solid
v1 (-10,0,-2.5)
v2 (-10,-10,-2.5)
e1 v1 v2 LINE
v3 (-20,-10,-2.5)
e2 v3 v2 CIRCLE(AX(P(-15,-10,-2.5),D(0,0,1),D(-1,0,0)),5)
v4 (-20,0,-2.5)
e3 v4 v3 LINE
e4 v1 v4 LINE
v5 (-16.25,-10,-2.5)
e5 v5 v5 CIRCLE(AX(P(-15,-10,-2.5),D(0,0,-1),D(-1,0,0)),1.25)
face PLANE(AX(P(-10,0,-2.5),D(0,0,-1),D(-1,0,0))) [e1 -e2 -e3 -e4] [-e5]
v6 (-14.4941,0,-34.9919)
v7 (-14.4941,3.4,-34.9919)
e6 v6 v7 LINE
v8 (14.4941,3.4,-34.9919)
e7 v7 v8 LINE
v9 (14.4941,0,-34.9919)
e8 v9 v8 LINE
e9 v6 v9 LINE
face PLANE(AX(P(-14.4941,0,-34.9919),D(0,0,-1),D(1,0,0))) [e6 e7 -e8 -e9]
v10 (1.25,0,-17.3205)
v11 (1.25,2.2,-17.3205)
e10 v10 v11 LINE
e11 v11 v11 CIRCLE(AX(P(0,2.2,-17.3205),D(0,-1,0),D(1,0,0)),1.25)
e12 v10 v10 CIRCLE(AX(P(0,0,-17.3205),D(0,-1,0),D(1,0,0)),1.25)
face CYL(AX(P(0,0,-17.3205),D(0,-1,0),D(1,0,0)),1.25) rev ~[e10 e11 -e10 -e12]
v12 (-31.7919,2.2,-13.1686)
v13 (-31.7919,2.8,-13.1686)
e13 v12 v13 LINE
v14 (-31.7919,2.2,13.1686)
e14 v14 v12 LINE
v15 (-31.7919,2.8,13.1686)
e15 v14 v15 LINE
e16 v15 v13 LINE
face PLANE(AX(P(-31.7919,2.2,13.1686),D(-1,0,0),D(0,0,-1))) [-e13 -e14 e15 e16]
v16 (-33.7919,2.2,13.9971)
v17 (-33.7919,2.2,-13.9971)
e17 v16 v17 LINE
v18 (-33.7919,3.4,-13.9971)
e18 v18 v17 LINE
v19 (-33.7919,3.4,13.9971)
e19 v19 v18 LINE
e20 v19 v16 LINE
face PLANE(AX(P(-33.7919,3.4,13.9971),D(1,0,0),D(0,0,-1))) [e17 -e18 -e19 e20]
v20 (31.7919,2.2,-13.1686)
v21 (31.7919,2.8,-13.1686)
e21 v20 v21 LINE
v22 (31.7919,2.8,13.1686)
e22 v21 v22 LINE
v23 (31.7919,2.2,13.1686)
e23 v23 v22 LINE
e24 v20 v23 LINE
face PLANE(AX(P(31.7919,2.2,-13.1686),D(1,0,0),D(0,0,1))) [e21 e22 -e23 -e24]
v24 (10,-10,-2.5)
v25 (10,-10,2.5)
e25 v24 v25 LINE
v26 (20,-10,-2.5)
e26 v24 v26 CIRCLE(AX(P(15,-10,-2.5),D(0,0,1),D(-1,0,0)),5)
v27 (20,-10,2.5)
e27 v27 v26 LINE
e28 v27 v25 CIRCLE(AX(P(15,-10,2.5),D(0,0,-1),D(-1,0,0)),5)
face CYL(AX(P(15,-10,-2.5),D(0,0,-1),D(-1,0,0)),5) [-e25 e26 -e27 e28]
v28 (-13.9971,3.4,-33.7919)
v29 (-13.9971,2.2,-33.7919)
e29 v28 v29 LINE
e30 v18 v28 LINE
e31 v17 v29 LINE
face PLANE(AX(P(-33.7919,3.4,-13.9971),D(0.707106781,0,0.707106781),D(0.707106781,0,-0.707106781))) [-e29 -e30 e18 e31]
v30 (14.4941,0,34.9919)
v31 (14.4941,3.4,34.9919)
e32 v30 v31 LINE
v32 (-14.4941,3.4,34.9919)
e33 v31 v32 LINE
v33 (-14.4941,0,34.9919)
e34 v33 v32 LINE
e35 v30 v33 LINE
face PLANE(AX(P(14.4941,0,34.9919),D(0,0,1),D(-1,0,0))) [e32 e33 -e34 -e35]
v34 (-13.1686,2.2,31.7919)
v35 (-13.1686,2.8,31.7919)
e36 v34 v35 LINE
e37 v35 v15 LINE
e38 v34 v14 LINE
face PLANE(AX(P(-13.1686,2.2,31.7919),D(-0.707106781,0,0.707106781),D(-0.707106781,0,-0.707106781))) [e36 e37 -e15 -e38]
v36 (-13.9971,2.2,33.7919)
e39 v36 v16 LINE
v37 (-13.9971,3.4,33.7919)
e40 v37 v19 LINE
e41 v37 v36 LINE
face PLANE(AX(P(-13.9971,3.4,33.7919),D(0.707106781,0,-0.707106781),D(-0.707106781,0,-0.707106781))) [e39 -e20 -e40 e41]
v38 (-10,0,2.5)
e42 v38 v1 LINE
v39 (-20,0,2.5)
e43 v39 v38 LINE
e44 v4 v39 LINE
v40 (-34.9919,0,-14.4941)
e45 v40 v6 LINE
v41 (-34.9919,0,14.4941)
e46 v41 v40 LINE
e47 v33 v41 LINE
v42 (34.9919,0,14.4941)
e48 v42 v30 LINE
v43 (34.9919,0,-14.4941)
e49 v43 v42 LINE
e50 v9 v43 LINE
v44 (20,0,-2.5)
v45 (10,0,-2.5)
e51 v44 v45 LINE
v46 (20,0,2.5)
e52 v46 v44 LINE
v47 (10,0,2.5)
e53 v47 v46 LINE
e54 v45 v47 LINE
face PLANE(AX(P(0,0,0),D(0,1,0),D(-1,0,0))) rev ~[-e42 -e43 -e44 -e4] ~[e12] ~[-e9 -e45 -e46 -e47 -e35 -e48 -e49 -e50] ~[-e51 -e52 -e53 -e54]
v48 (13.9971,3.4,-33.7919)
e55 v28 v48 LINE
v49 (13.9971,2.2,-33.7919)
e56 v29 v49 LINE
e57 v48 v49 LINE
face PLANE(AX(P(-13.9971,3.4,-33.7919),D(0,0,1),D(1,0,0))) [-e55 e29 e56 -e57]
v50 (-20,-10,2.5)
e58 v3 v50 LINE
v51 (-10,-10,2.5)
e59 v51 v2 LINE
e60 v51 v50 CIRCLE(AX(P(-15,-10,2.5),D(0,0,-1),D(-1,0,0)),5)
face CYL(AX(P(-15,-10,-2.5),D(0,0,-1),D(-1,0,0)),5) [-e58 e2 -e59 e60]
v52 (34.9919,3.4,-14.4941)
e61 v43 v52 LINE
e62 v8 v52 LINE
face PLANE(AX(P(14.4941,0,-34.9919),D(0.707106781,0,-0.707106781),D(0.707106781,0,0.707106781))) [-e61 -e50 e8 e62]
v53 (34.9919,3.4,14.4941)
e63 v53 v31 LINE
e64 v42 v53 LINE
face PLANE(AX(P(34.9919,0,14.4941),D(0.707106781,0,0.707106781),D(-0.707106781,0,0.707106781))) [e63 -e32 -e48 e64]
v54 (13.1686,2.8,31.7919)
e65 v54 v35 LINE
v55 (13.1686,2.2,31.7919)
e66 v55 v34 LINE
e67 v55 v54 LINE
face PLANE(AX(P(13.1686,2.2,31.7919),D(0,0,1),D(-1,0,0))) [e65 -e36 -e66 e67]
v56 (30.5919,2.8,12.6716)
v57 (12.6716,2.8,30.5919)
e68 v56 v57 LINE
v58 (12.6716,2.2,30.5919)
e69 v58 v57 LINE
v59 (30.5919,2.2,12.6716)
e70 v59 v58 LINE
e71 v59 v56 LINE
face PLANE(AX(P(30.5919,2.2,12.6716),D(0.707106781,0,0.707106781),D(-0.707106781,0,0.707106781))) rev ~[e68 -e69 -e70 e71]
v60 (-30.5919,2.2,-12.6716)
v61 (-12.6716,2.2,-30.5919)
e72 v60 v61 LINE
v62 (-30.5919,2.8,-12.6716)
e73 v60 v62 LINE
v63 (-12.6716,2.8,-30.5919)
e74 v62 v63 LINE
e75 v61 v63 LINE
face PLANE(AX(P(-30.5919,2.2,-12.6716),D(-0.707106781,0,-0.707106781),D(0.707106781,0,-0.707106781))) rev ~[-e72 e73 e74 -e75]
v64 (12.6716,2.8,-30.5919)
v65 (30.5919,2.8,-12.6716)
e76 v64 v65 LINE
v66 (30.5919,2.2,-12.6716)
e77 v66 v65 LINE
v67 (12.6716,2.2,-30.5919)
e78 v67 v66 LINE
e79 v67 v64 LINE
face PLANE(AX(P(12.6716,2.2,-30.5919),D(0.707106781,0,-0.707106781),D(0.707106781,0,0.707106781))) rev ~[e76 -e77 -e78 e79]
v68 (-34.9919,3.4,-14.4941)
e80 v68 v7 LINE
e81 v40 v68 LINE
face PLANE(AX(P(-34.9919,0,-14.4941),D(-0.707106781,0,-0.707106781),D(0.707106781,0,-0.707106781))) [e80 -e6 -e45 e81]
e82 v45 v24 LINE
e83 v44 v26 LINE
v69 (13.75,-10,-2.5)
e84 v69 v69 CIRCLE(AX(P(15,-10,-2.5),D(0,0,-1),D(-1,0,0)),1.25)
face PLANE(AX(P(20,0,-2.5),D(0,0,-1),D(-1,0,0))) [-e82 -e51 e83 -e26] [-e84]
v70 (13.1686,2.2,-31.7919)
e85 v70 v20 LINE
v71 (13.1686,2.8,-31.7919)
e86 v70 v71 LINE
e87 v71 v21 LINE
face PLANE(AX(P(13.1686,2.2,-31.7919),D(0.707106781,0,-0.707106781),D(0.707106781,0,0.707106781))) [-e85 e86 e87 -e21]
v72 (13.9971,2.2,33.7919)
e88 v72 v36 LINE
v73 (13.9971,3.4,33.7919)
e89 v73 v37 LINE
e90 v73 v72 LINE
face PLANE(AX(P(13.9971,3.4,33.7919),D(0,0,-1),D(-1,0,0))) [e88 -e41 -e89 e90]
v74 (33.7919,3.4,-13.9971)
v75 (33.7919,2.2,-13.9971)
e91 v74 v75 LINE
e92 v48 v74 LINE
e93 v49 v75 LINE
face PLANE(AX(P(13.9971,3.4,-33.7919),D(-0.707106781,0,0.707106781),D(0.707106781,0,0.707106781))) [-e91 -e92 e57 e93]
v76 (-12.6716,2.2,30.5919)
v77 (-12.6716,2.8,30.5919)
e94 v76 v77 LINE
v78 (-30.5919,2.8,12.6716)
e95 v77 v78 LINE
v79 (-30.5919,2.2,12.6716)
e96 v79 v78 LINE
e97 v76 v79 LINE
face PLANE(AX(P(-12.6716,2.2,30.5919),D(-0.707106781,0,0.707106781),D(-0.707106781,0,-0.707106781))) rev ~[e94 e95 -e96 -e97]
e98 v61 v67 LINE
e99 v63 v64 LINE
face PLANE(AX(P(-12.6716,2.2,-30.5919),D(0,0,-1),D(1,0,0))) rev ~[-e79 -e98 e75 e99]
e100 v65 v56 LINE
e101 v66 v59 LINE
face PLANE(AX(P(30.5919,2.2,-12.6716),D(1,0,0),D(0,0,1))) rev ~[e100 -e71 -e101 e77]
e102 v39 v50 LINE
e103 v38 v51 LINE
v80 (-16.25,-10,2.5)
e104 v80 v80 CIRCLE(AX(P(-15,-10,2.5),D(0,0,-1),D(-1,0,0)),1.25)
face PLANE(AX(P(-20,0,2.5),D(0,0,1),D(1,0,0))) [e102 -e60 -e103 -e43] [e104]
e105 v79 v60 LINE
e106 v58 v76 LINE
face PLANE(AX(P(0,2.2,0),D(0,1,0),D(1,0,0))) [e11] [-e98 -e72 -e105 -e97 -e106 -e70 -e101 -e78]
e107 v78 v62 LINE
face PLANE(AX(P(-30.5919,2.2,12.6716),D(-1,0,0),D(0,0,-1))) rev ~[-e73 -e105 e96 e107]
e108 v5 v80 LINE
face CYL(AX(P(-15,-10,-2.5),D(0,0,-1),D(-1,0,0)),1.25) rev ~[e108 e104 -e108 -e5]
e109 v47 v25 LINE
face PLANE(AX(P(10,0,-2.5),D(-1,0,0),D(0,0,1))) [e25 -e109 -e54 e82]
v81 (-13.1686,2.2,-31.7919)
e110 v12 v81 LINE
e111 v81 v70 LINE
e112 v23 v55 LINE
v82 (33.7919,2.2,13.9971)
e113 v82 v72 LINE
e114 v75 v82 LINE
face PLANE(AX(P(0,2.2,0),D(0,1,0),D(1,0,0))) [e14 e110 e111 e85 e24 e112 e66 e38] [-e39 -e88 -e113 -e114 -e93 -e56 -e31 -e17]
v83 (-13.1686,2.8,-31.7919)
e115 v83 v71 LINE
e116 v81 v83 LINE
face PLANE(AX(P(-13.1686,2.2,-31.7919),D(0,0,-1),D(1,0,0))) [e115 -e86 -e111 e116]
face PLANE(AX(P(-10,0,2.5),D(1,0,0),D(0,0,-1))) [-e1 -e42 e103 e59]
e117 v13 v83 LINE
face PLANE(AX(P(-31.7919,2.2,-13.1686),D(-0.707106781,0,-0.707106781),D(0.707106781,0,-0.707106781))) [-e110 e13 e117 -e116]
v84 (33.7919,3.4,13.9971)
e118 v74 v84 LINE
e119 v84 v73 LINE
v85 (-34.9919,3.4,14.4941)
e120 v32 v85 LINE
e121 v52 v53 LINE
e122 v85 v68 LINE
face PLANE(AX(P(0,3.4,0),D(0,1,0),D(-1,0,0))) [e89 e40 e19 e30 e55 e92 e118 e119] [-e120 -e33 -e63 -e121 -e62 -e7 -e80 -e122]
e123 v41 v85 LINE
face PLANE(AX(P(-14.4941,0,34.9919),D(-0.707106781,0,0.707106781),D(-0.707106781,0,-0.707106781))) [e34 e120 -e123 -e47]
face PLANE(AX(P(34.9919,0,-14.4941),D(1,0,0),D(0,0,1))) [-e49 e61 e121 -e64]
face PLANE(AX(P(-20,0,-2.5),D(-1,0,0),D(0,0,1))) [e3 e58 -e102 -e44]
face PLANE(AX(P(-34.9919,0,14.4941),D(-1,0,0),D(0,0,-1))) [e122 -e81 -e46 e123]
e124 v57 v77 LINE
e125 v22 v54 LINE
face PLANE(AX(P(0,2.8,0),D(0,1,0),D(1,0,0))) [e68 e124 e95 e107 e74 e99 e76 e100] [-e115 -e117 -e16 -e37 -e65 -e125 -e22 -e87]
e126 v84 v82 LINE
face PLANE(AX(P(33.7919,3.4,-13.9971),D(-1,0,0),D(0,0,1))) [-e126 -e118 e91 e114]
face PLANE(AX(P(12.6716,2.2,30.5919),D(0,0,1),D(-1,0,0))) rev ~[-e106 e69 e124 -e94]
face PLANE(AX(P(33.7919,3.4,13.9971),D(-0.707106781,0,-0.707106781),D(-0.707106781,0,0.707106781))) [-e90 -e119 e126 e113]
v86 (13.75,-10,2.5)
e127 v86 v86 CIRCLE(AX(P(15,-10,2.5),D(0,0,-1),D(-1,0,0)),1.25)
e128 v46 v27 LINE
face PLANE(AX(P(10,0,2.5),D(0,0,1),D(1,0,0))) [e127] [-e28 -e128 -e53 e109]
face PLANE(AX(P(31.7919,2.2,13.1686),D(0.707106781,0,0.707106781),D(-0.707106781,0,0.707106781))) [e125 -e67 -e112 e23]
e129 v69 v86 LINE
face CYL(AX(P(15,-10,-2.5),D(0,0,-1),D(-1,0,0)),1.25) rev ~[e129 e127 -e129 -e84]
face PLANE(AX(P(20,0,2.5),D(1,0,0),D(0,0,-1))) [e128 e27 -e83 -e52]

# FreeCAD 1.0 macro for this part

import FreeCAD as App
import Part
import Sketcher

V = App.Vector
Q = App.Units.Quantity


def add_polygon(sketch, points):
    """Adds a closed chain of lines whose ends are joined by coincident constraints."""
    first, n = sketch.GeometryCount, len(points)
    for a, b in zip(points, points[1:] + points[:1]):
        sketch.addGeometry(Part.LineSegment(App.Vector(*a, 0), App.Vector(*b, 0)), False)
    for i in range(n):
        sketch.addConstraint(Sketcher.Constraint("Coincident", first + i, 2, first + (i + 1) % n, 1))

doc = App.newDocument("Part")
body = doc.addObject("PartDesign::Body", "Body")

# Sketch on XZ plane
sketch1 = body.newObject("Sketcher::SketchObject", "Sketch")
sketch1.AttachmentSupport = (doc.getObject("XZ_Plane"), [""])
sketch1.MapMode = "FlatFace"
add_polygon(sketch1, [(-14, -35), (-35, -14), (-35, 14), (-14, 35), (14, 35), (35, 14), (35, -14), (14, -35)])  # lines 0-7
sketch1.addConstraint([
    Sketcher.Constraint("Vertical", 1),
    Sketcher.Constraint("Horizontal", 3),
    Sketcher.Constraint("Vertical", 5),
    Sketcher.Constraint("Horizontal", 7),
    Sketcher.Constraint("Symmetric", 0, 2, 4, 2, -1, 1),
    Sketcher.Constraint("Symmetric", 2, 2, 6, 2, -1, 1),
    Sketcher.Constraint("Perpendicular", 0, 2),
    Sketcher.Constraint("Perpendicular", 2, 4),
    Sketcher.Constraint("Perpendicular", 4, 6),
    Sketcher.Constraint("Horizontal", 1, 2, 4, 2),
    Sketcher.Constraint("Vertical", 3, 2, 6, 2),
    Sketcher.Constraint("Equal", 7, 1),
    Sketcher.Constraint("DistanceX", 3, 1, 3, 2, Q("28.9882 mm")),
    Sketcher.Constraint("DistanceX", 0, 2, -1, 1, Q("34.992 mm")),
])
pad1 = body.newObject("PartDesign::Pad", "Pad")
pad1.Profile = sketch1
pad1.Length = 3.4
pad1.Reversed = True

# Sketch on XZ plane
sketch2 = body.newObject("Sketcher::SketchObject", "Sketch001")
sketch2.AttachmentSupport = (doc.getObject("XZ_Plane"), [""])
sketch2.MapMode = "FlatFace"
sketch2.AttachmentOffset = App.Placement(V(0, 0, -3.4), App.Rotation())
add_polygon(sketch2, [(14, -34), (-14, -34), (-34, -14), (-34, 14), (-14, 34), (14, 34), (34, 14), (34, -14)])  # lines 0-7
sketch2.addConstraint([
    Sketcher.Constraint("Horizontal", 0),
    Sketcher.Constraint("Vertical", 2),
    Sketcher.Constraint("Horizontal", 4),
    Sketcher.Constraint("Vertical", 6),
    Sketcher.Constraint("Symmetric", 0, 2, 4, 2, -1, 1),
    Sketcher.Constraint("Symmetric", 1, 2, 5, 2, -1, 1),
    Sketcher.Constraint("Perpendicular", 1, 3),
    Sketcher.Constraint("Perpendicular", 5, 7),
    Sketcher.Constraint("Horizontal", 2, 2, 5, 2),
    Sketcher.Constraint("Horizontal", 1, 2, 6, 2),
    Sketcher.Constraint("Vertical", 0, 2, 3, 2),
    Sketcher.Constraint("Equal", 4, 2),
    Sketcher.Constraint("Distance", 1, Q("27.994 mm")),
    Sketcher.Constraint("DistanceX", 0, 2, 0, 1, Q("27.9942 mm")),
])
pocket1 = body.newObject("PartDesign::Pocket", "Pocket")
pocket1.Profile = sketch2
pocket1.Length = 1.2
pocket1.Reversed = True

# Sketch on XZ plane
sketch3 = body.newObject("Sketcher::SketchObject", "Sketch002")
sketch3.AttachmentSupport = (doc.getObject("XZ_Plane"), [""])
sketch3.MapMode = "FlatFace"
add_polygon(sketch3, [(20, 2), (10, 2), (10, -2), (20, -2)])  # lines 0-3
add_polygon(sketch3, [(-10, 2), (-20, 2), (-20, -2), (-10, -2)])  # lines 4-7
sketch3.addConstraint([
    Sketcher.Constraint("Horizontal", 0),
    Sketcher.Constraint("Vertical", 1),
    Sketcher.Constraint("Horizontal", 2),
    Sketcher.Constraint("Vertical", 3),
    Sketcher.Constraint("Horizontal", 4),
    Sketcher.Constraint("Vertical", 5),
    Sketcher.Constraint("Horizontal", 6),
    Sketcher.Constraint("Vertical", 7),
    Sketcher.Constraint("Symmetric", 2, 2, 4, 2, -1, 1),
    Sketcher.Constraint("Symmetric", 0, 2, 6, 2, -1, 1),
    Sketcher.Constraint("Horizontal", 3, 2, 4, 2),
    Sketcher.Constraint("DistanceX", 0, 2, 0, 1, Q("10 mm")),
    Sketcher.Constraint("DistanceY", 1, 2, 1, 1, Q("5 mm")),
    Sketcher.Constraint("DistanceX", -1, 1, 0, 2, Q("10 mm")),
])
pad2 = body.newObject("PartDesign::Pad", "Pad001")
pad2.Profile = sketch3
pad2.Length = 10

# Sketch on XY plane
sketch4 = body.newObject("Sketcher::SketchObject", "Sketch003")
sketch4.AttachmentSupport = (doc.getObject("XY_Plane"), [""])
sketch4.MapMode = "FlatFace"
sketch4.AttachmentOffset = App.Placement(V(0, 0, -2.5), App.Rotation())
sketch4.addGeometry([
    Part.Circle(V(-15, -10, 0), V(0, 0, 1), 5),
    Part.Circle(V(15, -10, 0), V(0, 0, 1), 5),
], False)
sketch4.addConstraint([
    Sketcher.Constraint("Equal", 0, 1),
    Sketcher.Constraint("Symmetric", 0, 3, 1, 3, -2),
    Sketcher.Constraint("Diameter", 0, Q("10 mm")),
    Sketcher.Constraint("DistanceY", 0, 3, -1, 1, Q("10 mm")),
    Sketcher.Constraint("DistanceX", 0, 3, -1, 1, Q("15 mm")),
])
pad3 = body.newObject("PartDesign::Pad", "Pad002")
pad3.Profile = sketch4
pad3.Length = 5

# Sketch on XY plane
sketch5 = body.newObject("Sketcher::SketchObject", "Sketch004")
sketch5.AttachmentSupport = (doc.getObject("XY_Plane"), [""])
sketch5.MapMode = "FlatFace"
sketch5.AttachmentOffset = App.Placement(V(0, 0, -2.5), App.Rotation())
sketch5.addGeometry([
    Part.Circle(V(-15, -10, 0), V(0, 0, 1), 1.2),
    Part.Circle(V(15, -10, 0), V(0, 0, 1), 1.2),
], False)
sketch5.addConstraint([
    Sketcher.Constraint("Equal", 0, 1),
    Sketcher.Constraint("Symmetric", 0, 3, 1, 3, -2),
    Sketcher.Constraint("Diameter", 0, Q("2.5 mm")),
    Sketcher.Constraint("DistanceY", 0, 3, -1, 1, Q("10 mm")),
    Sketcher.Constraint("DistanceX", 0, 3, 1, 3, Q("30 mm")),
])
pocket2 = body.newObject("PartDesign::Pocket", "Pocket001")
pocket2.Profile = sketch5
pocket2.Length = 5
pocket2.Reversed = True

# Sketch on XZ plane
sketch6 = body.newObject("Sketcher::SketchObject", "Sketch005")
sketch6.AttachmentSupport = (doc.getObject("XZ_Plane"), [""])
sketch6.MapMode = "FlatFace"
sketch6.addGeometry(Part.Circle(V(0, -17.3, 0), V(0, 0, 1), 1.2), False)
sketch6.addConstraint([
    Sketcher.Constraint("PointOnObject", 0, 3, -2),
    Sketcher.Constraint("Diameter", 0, Q("2.5 mm")),
    Sketcher.Constraint("DistanceY", 0, 3, -1, 1, Q("17.3205 mm")),
])
pocket3 = body.newObject("PartDesign::Pocket", "Pocket002")
pocket3.Profile = sketch6
pocket3.Length = 5

# Sketch on XZ plane
sketch7 = body.newObject("Sketcher::SketchObject", "Sketch006")
sketch7.AttachmentSupport = (doc.getObject("XZ_Plane"), [""])
sketch7.MapMode = "FlatFace"
sketch7.AttachmentOffset = App.Placement(V(0, 0, -2.2), App.Rotation())
add_polygon(sketch7, [(13, -32), (-13, -32), (-32, -13), (-32, 13), (-13, 32), (13, 32), (32, 13), (32, -13)])  # lines 0-7
add_polygon(sketch7, [(-31, -13), (-13, -31), (13, -31), (31, -13), (31, 13), (13, 31), (-13, 31), (-31, 13)])  # lines 8-15
sketch7.addConstraint([
    Sketcher.Constraint("Horizontal", 0),
    Sketcher.Constraint("Vertical", 2),
    Sketcher.Constraint("Horizontal", 4),
    Sketcher.Constraint("Vertical", 6),
    Sketcher.Constraint("Horizontal", 9),
    Sketcher.Constraint("Vertical", 11),
    Sketcher.Constraint("Horizontal", 13),
    Sketcher.Constraint("Vertical", 15),
    Sketcher.Constraint("Symmetric", 0, 2, 4, 2, -1, 1),
    Sketcher.Constraint("Symmetric", 1, 2, 5, 2, -1, 1),
    Sketcher.Constraint("Symmetric", 8, 2, 12, 2, -1, 1),
    Sketcher.Constraint("Symmetric", 10, 2, 14, 2, -1, 1),
    Sketcher.Constraint("Perpendicular", 1, 3),
    Sketcher.Constraint("Perpendicular", 5, 7),
    Sketcher.Constraint("Perpendicular", 7, 8),
    Sketcher.Constraint("Perpendicular", 8, 10),
    Sketcher.Constraint("Perpendicular", 10, 12),
    Sketcher.Constraint("Perpendicular", 12, 14),
    Sketcher.Constraint("Horizontal", 2, 2, 5, 2),
    Sketcher.Constraint("Horizontal", 1, 2, 6, 2),
    Sketcher.Constraint("Horizontal", 11, 2, 14, 2),
    Sketcher.Constraint("Vertical", 0, 2, 3, 2),
    Sketcher.Constraint("Equal", 4, 2),
    Sketcher.Constraint("Equal", 13, 11),
    Sketcher.Constraint("DistanceY", 0, 2, 8, 2, Q("1.2 mm")),
    Sketcher.Constraint("DistanceX", 0, 2, 0, 1, Q("26.3372 mm")),
    Sketcher.Constraint("DistanceX", 9, 1, 9, 2, Q("25.3432 mm")),
    Sketcher.Constraint("DistanceY", 0, 2, -1, 1, Q("31.792 mm")),
])
pad4 = body.newObject("PartDesign::Pad", "Pad003")
pad4.Profile = sketch7
pad4.Length = 0.6
pad4.Reversed = True

doc.recompute()
